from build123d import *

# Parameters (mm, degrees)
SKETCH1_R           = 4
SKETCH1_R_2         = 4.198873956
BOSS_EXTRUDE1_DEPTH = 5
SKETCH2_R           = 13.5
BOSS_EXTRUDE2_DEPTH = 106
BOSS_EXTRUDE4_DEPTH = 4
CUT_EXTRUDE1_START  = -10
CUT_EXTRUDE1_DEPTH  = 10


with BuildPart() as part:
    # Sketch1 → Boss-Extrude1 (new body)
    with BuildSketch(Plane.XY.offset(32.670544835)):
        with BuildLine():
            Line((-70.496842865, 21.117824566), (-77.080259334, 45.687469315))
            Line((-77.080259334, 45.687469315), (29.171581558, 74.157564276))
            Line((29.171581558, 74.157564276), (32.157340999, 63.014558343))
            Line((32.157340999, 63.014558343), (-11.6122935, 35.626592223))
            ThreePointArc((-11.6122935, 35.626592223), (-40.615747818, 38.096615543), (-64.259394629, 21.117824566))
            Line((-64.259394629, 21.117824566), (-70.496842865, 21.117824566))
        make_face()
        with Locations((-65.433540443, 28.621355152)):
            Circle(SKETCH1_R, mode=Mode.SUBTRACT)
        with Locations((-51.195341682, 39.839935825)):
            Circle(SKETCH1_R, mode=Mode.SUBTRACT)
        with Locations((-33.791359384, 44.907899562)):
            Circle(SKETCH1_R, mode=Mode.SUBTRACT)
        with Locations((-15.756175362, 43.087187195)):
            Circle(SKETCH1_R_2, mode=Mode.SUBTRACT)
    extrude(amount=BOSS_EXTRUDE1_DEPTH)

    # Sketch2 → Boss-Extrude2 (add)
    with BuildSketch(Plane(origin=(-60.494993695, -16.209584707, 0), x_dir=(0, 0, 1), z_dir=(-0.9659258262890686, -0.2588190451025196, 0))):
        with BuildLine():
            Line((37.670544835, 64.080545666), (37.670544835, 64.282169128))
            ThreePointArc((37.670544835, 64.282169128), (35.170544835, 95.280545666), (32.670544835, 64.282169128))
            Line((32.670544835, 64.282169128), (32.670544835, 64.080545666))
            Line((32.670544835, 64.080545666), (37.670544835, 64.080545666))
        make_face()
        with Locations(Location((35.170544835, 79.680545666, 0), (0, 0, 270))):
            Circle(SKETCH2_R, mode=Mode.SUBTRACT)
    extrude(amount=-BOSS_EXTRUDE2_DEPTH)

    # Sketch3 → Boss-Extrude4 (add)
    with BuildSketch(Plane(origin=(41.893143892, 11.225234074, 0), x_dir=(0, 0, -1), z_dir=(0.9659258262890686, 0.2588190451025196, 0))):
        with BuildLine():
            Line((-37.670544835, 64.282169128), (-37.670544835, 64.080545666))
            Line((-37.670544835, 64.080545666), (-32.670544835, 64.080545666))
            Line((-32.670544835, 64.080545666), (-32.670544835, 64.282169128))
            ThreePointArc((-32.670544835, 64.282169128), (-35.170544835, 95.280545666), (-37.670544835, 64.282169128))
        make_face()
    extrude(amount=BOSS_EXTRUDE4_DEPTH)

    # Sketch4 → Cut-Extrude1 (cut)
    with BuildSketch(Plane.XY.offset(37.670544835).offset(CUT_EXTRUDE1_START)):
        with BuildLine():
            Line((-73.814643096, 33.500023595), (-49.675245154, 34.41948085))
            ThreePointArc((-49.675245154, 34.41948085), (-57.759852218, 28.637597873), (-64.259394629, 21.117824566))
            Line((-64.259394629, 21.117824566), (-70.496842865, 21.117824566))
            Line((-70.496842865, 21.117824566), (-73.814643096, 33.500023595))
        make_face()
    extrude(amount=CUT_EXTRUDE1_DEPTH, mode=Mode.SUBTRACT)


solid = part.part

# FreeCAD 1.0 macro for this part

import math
import FreeCAD as App
import Part
import Sketcher
Q = App.Units.Quantity

doc = App.newDocument("Part")
params = doc.addObject("Spreadsheet::Sheet", "Params")
for row, (alias, value) in enumerate([
    ("sketch1_diameter", "8 mm"),
    ("sketch1_radius", "42 mm"),
    ("sketch1_length", "110 mm"),
    ("pad1_length", "5 mm"),
    ("sketch2_diameter", "27 mm"),
    ("sketch2_radius", "15.6 mm"),
    ("sketch2_width", "5 mm"),
    ("pad2_length", "106 mm"),
    ("sketch3_radius", "15.6 mm"),
    ("sketch3_width", "5 mm"),
    ("pad3_length", "4 mm"),
    ("sketch4_radius", "42 mm"),
    ("pocket1_length", "10 mm"),
], start=1):
    params.set(f"A{row}", alias)
    params.set(f"B{row}", "=" + value)
    params.setAlias(f"B{row}", alias)

body = doc.addObject("PartDesign::Body", "Body")

# Sketch on XY plane
sketch1 = body.newObject("Sketcher::SketchObject", "Sketch")
sketch1.AttachmentSupport = (doc.getObject("XY_Plane"), [""])
sketch1.MapMode = "FlatFace"
sketch1.AttachmentOffset = App.Placement(App.Vector(0, 0, 32.670545), App.Rotation())
sketch1.addGeometry(Part.LineSegment(App.Vector(-77.1, 45.7, 0), App.Vector(-70.5, 21.1, 0)), False)
sketch1.addGeometry(Part.LineSegment(App.Vector(-70.5, 21.1, 0), App.Vector(-64.3, 21.1, 0)), False)
sketch1.addGeometry(Part.ArcOfCircle(Part.Circle(App.Vector(-29.5, -2.4, 0), App.Vector(0, 0, 1), 42), math.radians(65), math.radians(146)), False)
sketch1.addGeometry(Part.LineSegment(App.Vector(-11.6, 35.6, 0), App.Vector(32.2, 63, 0)), False)
sketch1.addGeometry(Part.LineSegment(App.Vector(32.2, 63, 0), App.Vector(29.2, 74.2, 0)), False)
sketch1.addGeometry(Part.LineSegment(App.Vector(29.2, 74.2, 0), App.Vector(-77.1, 45.7, 0)), False)
sketch1.addGeometry(Part.Circle(App.Vector(-65.4, 28.6, 0), App.Vector(0, 0, 1), 4), False)
sketch1.addGeometry(Part.Circle(App.Vector(-15.8, 43.1, 0), App.Vector(0, 0, 1), 4.2), False)
sketch1.addGeometry(Part.Circle(App.Vector(-33.8, 44.9, 0), App.Vector(0, 0, 1), 4), False)
sketch1.addGeometry(Part.Circle(App.Vector(-51.2, 39.8, 0), App.Vector(0, 0, 1), 4), False)
sketch1.addConstraint(Sketcher.Constraint("Coincident", 0, 2, 1, 1))
sketch1.addConstraint(Sketcher.Constraint("Coincident", 1, 2, 2, 2))
sketch1.addConstraint(Sketcher.Constraint("Coincident", 2, 1, 3, 1))
sketch1.addConstraint(Sketcher.Constraint("Coincident", 3, 2, 4, 1))
sketch1.addConstraint(Sketcher.Constraint("Coincident", 4, 2, 5, 1))
sketch1.addConstraint(Sketcher.Constraint("Coincident", 5, 2, 0, 1))
sketch1.addConstraint(Sketcher.Constraint("Horizontal", 1))
sketch1.addConstraint(Sketcher.Constraint("Equal", 6, 8))
sketch1.addConstraint(Sketcher.Constraint("Equal", 8, 9))
sketch1.addConstraint(Sketcher.Constraint("Parallel", 0, 4))
sketch1.addConstraint(Sketcher.Constraint("Perpendicular", 4, 5))
sketch1.addConstraint(Sketcher.Constraint("Diameter", 6, Q("8 mm")))
sketch1.addConstraint(Sketcher.Constraint("Radius", 2, Q("42 mm")))
sketch1.addConstraint(Sketcher.Constraint("Angle", 0, Q("-75 deg")))
sketch1.addConstraint(Sketcher.Constraint("Distance", 5, Q("110 mm")))
sketch1.addConstraint(Sketcher.Constraint("Diameter", 7, Q("8.397748 mm")))
sketch1.addConstraint(Sketcher.Constraint("DistanceX", 1, 1, 1, 2, Q("6.237448 mm")))
sketch1.addConstraint(Sketcher.Constraint("DistanceY", -1, 1, 8, 3, Q("44.9079 mm")))
sketch1.addConstraint(Sketcher.Constraint("DistanceY", 2, 3, 6, 3, Q("31.015301 mm")))
sketch1.addConstraint(Sketcher.Constraint("DistanceX", 6, 3, 9, 3, Q("14.238199 mm")))
sketch1.addConstraint(Sketcher.Constraint("DistanceX", 0, 2, 9, 3, Q("19.301501 mm")))
sketch1.addConstraint(Sketcher.Constraint("DistanceX", 0, 2, 2, 3, Q("41.039699 mm")))
sketch1.addConstraint(Sketcher.Constraint("DistanceX", 8, 3, 3, 2, Q("65.9487 mm")))
sketch1.addConstraint(Sketcher.Constraint("DistanceX", 5, 2, 8, 3, Q("43.2889 mm")))
sketch1.addConstraint(Sketcher.Constraint("DistanceX", 6, 3, -1, 1, Q("65.43354 mm")))
sketch1.addConstraint(Sketcher.Constraint("DistanceX", 8, 3, -1, 1, Q("33.791359 mm")))
sketch1.addConstraint(Sketcher.Constraint("DistanceY", -1, 1, 3, 2, Q("63.014558 mm")))
sketch1.addConstraint(Sketcher.Constraint("DistanceX", 2, 3, 7, 3, Q("13.700969 mm")))
sketch1.addConstraint(Sketcher.Constraint("DistanceY", 6, 3, 9, 3, Q("11.218581 mm")))
sketch1.addConstraint(Sketcher.Constraint("DistanceY", 9, 3, 7, 3, Q("3.247251 mm")))
sketch1.addConstraint(Sketcher.Constraint("DistanceX", 7, 3, 2, 1, Q("4.143882 mm")))
sketch1.setExpression("Constraints[11]", "Params.sketch1_diameter")
sketch1.setExpression("Constraints[12]", "Params.sketch1_radius")
sketch1.setExpression("Constraints[14]", "Params.sketch1_length")
pad1 = body.newObject("PartDesign::Pad", "Pad")
pad1.Profile = sketch1
pad1.setExpression("Length", "Params.pad1_length")

# Sketch on an angled plane
sketch2 = body.newObject("Sketcher::SketchObject", "Sketch001")
sketch2.Placement = App.Placement(App.Vector(-60.494994, -16.209585, 0), App.Rotation(App.Vector(0, 0, 1), App.Vector(-0.258819045, 0.965925826, 0), App.Vector(-0.965925826, -0.258819045, 0), "ZXY"))
sketch2.addGeometry(Part.LineSegment(App.Vector(37.67, 64.08, 0), App.Vector(37.67, 64.28, 0)), False)
sketch2.addGeometry(Part.ArcOfCircle(Part.Circle(App.Vector(35.17, 79.68, 0), App.Vector(0, 0, 1), 15.6), math.radians(-81), math.radians(261)), False)
sketch2.addGeometry(Part.LineSegment(App.Vector(32.67, 64.28, 0), App.Vector(32.67, 64.08, 0)), False)
sketch2.addGeometry(Part.LineSegment(App.Vector(32.67, 64.08, 0), App.Vector(37.67, 64.08, 0)), False)
sketch2.addGeometry(Part.Circle(App.Vector(35.17, 79.68, 0), App.Vector(0, 0, 1), 13.5), False)
sketch2.addConstraint(Sketcher.Constraint("Coincident", 0, 2, 1, 1))
sketch2.addConstraint(Sketcher.Constraint("Coincident", 1, 2, 2, 1))
sketch2.addConstraint(Sketcher.Constraint("Coincident", 2, 2, 3, 1))
sketch2.addConstraint(Sketcher.Constraint("Coincident", 3, 2, 0, 1))
sketch2.addConstraint(Sketcher.Constraint("Vertical", 0))
sketch2.addConstraint(Sketcher.Constraint("Vertical", 2))
sketch2.addConstraint(Sketcher.Constraint("Horizontal", 3))
sketch2.addConstraint(Sketcher.Constraint("Coincident", 4, 3, 1, 3))
sketch2.addConstraint(Sketcher.Constraint("Horizontal", 0, 2, 1, 2))
sketch2.addConstraint(Sketcher.Constraint("Diameter", 4, Q("27 mm")))
sketch2.addConstraint(Sketcher.Constraint("Radius", 1, Q("15.6 mm")))
sketch2.addConstraint(Sketcher.Constraint("DistanceX", 3, 1, 3, 2, Q("5 mm")))
sketch2.addConstraint(Sketcher.Constraint("DistanceY", 2, 2, 1, 3, Q("15.6 mm")))
sketch2.addConstraint(Sketcher.Constraint("DistanceY", -1, 1, 0, 2, Q("64.282169 mm")))
sketch2.addConstraint(Sketcher.Constraint("DistanceX", -1, 1, 1, 3, Q("35.170545 mm")))
sketch2.setExpression("Constraints[9]", "Params.sketch2_diameter")
sketch2.setExpression("Constraints[10]", "Params.sketch2_radius")
sketch2.setExpression("Constraints[11]", "Params.sketch2_width")
pad2 = body.newObject("PartDesign::Pad", "Pad001")
pad2.Profile = sketch2
pad2.setExpression("Length", "Params.pad2_length")
pad2.Reversed = True

# Sketch on an angled plane
sketch3 = body.newObject("Sketcher::SketchObject", "Sketch002")
sketch3.Placement = App.Placement(App.Vector(41.893144, 11.225234, 0), App.Rotation(App.Vector(0, 0, -1), App.Vector(-0.258819045, 0.965925826, 0), App.Vector(0.965925826, 0.258819045, 0), "ZXY"))
sketch3.addGeometry(Part.LineSegment(App.Vector(-37.67, 64.28, 0), App.Vector(-37.67, 64.08, 0)), False)
sketch3.addGeometry(Part.LineSegment(App.Vector(-37.67, 64.08, 0), App.Vector(-32.67, 64.08, 0)), False)
sketch3.addGeometry(Part.LineSegment(App.Vector(-32.67, 64.08, 0), App.Vector(-32.67, 64.28, 0)), False)
sketch3.addGeometry(Part.ArcOfCircle(Part.Circle(App.Vector(-35.17, 79.68, 0), App.Vector(0, 0, 1), 15.6), math.radians(-81), math.radians(261)), False)
sketch3.addConstraint(Sketcher.Constraint("Coincident", 0, 2, 1, 1))
sketch3.addConstraint(Sketcher.Constraint("Coincident", 1, 2, 2, 1))
sketch3.addConstraint(Sketcher.Constraint("Coincident", 2, 2, 3, 1))
sketch3.addConstraint(Sketcher.Constraint("Coincident", 3, 2, 0, 1))
sketch3.addConstraint(Sketcher.Constraint("Vertical", 0))
sketch3.addConstraint(Sketcher.Constraint("Horizontal", 1))
sketch3.addConstraint(Sketcher.Constraint("Vertical", 2))
sketch3.addConstraint(Sketcher.Constraint("Horizontal", 2, 2, 3, 2))
sketch3.addConstraint(Sketcher.Constraint("Radius", 3, Q("15.6 mm")))
sketch3.addConstraint(Sketcher.Constraint("DistanceX", 1, 1, 1, 2, Q("5 mm")))
sketch3.addConstraint(Sketcher.Constraint("DistanceY", 0, 2, 3, 3, Q("15.6 mm")))
sketch3.addConstraint(Sketcher.Constraint("DistanceY", -1, 1, 2, 2, Q("64.282169 mm")))
sketch3.addConstraint(Sketcher.Constraint("DistanceX", 3, 3, -1, 1, Q("35.170545 mm")))
sketch3.setExpression("Constraints[8]", "Params.sketch3_radius")
sketch3.setExpression("Constraints[9]", "Params.sketch3_width")
pad3 = body.newObject("PartDesign::Pad", "Pad002")
pad3.Profile = sketch3
pad3.setExpression("Length", "Params.pad3_length")

# Sketch on XY plane
sketch4 = body.newObject("Sketcher::SketchObject", "Sketch003")
sketch4.AttachmentSupport = (doc.getObject("XY_Plane"), [""])
sketch4.MapMode = "FlatFace"
sketch4.AttachmentOffset = App.Placement(App.Vector(0, 0, 27.670545), App.Rotation())
sketch4.addGeometry(Part.LineSegment(App.Vector(-50, 34, 0), App.Vector(-74, 34, 0)), False)
sketch4.addGeometry(Part.LineSegment(App.Vector(-74, 34, 0), App.Vector(-70, 21, 0)), False)
sketch4.addGeometry(Part.LineSegment(App.Vector(-70, 21, 0), App.Vector(-64, 21, 0)), False)
sketch4.addGeometry(Part.ArcOfCircle(Part.Circle(App.Vector(-29, -2, 0), App.Vector(0, 0, 1), 42), math.radians(119), math.radians(146)), False)
sketch4.addConstraint(Sketcher.Constraint("Coincident", 0, 2, 1, 1))
sketch4.addConstraint(Sketcher.Constraint("Coincident", 1, 2, 2, 1))
sketch4.addConstraint(Sketcher.Constraint("Coincident", 2, 2, 3, 2))
sketch4.addConstraint(Sketcher.Constraint("Coincident", 3, 1, 0, 1))
sketch4.addConstraint(Sketcher.Constraint("Horizontal", 2))
sketch4.addConstraint(Sketcher.Constraint("Radius", 3, Q("42 mm")))
sketch4.addConstraint(Sketcher.Constraint("Angle", 1, Q("-75 deg")))
sketch4.addConstraint(Sketcher.Constraint("DistanceX", 2, 1, 2, 2, Q("6.237448 mm")))
sketch4.addConstraint(Sketcher.Constraint("DistanceX", 0, 2, 3, 3, Q("44.357499 mm")))
sketch4.addConstraint(Sketcher.Constraint("DistanceX", 0, 2, 1, 2, Q("3.3178 mm")))
sketch4.addConstraint(Sketcher.Constraint("DistanceX", 3, 1, 3, 3, Q("20.218101 mm")))
sketch4.addConstraint(Sketcher.Constraint("DistanceY", -1, 1, 3, 1, Q("34.419481 mm")))
sketch4.addConstraint(Sketcher.Constraint("DistanceX", 3, 3, -1, 1, Q("29.457144 mm")))
sketch4.setExpression("Constraints[5]", "Params.sketch4_radius")
pocket1 = body.newObject("PartDesign::Pocket", "Pocket")
pocket1.Profile = sketch4
pocket1.setExpression("Length", "Params.pocket1_length")
pocket1.Reversed = True

doc.recompute()
